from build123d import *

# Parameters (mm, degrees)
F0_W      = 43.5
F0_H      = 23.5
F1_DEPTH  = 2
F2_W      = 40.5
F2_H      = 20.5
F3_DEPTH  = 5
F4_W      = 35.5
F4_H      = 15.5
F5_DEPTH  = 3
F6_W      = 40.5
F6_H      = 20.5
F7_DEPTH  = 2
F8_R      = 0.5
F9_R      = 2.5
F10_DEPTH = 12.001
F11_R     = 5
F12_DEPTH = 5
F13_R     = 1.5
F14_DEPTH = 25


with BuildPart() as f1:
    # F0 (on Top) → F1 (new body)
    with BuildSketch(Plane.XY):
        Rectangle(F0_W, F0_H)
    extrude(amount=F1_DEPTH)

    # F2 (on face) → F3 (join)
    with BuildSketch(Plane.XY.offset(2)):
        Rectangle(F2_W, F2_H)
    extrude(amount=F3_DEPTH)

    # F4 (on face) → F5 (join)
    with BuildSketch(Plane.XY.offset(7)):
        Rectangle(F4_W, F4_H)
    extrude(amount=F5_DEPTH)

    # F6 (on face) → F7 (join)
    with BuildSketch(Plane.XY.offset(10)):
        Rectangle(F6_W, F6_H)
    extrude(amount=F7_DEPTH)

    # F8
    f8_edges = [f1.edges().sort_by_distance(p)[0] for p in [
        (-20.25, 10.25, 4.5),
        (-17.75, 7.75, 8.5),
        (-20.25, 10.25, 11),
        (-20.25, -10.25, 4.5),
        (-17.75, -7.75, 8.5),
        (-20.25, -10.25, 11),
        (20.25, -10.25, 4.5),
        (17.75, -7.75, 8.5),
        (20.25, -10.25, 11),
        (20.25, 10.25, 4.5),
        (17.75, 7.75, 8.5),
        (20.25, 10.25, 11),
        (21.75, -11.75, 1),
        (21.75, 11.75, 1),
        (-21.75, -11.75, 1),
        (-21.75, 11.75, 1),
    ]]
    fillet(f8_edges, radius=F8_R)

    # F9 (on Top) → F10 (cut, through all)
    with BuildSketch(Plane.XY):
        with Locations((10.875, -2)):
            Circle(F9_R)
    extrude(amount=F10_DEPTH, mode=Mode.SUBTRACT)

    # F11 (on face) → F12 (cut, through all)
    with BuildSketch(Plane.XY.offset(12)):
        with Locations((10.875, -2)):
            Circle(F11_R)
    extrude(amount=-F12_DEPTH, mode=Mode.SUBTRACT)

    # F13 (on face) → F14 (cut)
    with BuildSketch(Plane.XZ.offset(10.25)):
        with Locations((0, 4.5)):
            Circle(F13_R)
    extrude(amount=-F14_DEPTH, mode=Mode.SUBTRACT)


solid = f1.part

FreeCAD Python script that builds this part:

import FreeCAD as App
import Part
import Sketcher
Q = App.Units.Quantity


def edges_at(feature, points):
    """Names of the edges that pass closest to the given points."""
    edges = feature.Shape.Edges
    near = lambda p: min(range(len(edges)), key=lambda i: edges[i].distToShape(Part.Vertex(*p))[0])
    return sorted({f"Edge{near(p) + 1}" for p in points})


def add_polygon(sketch, points):
    """Adds a closed chain of lines whose ends are joined by coincident constraints."""
    first, n = sketch.GeometryCount, len(points)
    for a, b in zip(points, points[1:] + points[:1]):
        sketch.addGeometry(Part.LineSegment(App.Vector(*a, 0), App.Vector(*b, 0)), False)
    for i in range(n):
        sketch.addConstraint(Sketcher.Constraint("Coincident", first + i, 2, first + (i + 1) % n, 1))

doc = App.newDocument("Part")
body = doc.addObject("PartDesign::Body", "Body")

sketch1 = body.newObject("Sketcher::SketchObject", "Sketch")
sketch1.AttachmentSupport = (doc.getObject("XY_Plane"), [""])
sketch1.MapMode = "FlatFace"
add_polygon(sketch1, [(-21.75, 11.75), (-21.75, -11.75), (21.75, -11.75), (21.75, 11.75)])
sketch1.addConstraint([
    Sketcher.Constraint("Vertical", 0),
    Sketcher.Constraint("Horizontal", 1),
    Sketcher.Constraint("Vertical", 2),
    Sketcher.Constraint("Horizontal", 3),
    Sketcher.Constraint("Symmetric", 0, 2, 2, 2, -1, 1),
    Sketcher.Constraint("DistanceX", 1, 1, 1, 2, Q("43.5 mm")),
    Sketcher.Constraint("DistanceY", 0, 2, 0, 1, Q("23.5 mm")),
])
pad1 = body.newObject("PartDesign::Pad", "Pad")
pad1.Profile = sketch1
pad1.Length = 2

sketch2 = body.newObject("Sketcher::SketchObject", "Sketch001")
sketch2.AttachmentSupport = (doc.getObject("XY_Plane"), [""])
sketch2.MapMode = "FlatFace"
sketch2.AttachmentOffset = App.Placement(App.Vector(0, 0, 2), App.Rotation())
add_polygon(sketch2, [(-20.25, 10.25), (-20.25, -10.25), (20.25, -10.25), (20.25, 10.25)])
sketch2.addConstraint([
    Sketcher.Constraint("Vertical", 0),
    Sketcher.Constraint("Horizontal", 1),
    Sketcher.Constraint("Vertical", 2),
    Sketcher.Constraint("Horizontal", 3),
    Sketcher.Constraint("Symmetric", 0, 2, 2, 2, -1, 1),
    Sketcher.Constraint("DistanceX", 1, 1, 1, 2, Q("40.5 mm")),
    Sketcher.Constraint("DistanceY", 0, 2, 0, 1, Q("20.5 mm")),
])
pad2 = body.newObject("PartDesign::Pad", "Pad001")
pad2.Profile = sketch2
pad2.Length = 5

sketch3 = body.newObject("Sketcher::SketchObject", "Sketch002")
sketch3.AttachmentSupport = (doc.getObject("XY_Plane"), [""])
sketch3.MapMode = "FlatFace"
sketch3.AttachmentOffset = App.Placement(App.Vector(0, 0, 7), App.Rotation())
add_polygon(sketch3, [(-17.75, 7.75), (-17.75, -7.75), (17.75, -7.75), (17.75, 7.75)])
sketch3.addConstraint([
    Sketcher.Constraint("Vertical", 0),
    Sketcher.Constraint("Horizontal", 1),
    Sketcher.Constraint("Vertical", 2),
    Sketcher.Constraint("Horizontal", 3),
    Sketcher.Constraint("Symmetric", 0, 2, 2, 2, -1, 1),
    Sketcher.Constraint("DistanceX", 1, 1, 1, 2, Q("35.5 mm")),
    Sketcher.Constraint("DistanceY", 0, 2, 0, 1, Q("15.5 mm")),
])
pad3 = body.newObject("PartDesign::Pad", "Pad002")
pad3.Profile = sketch3
pad3.Length = 3

sketch4 = body.newObject("Sketcher::SketchObject", "Sketch003")
sketch4.AttachmentSupport = (doc.getObject("XY_Plane"), [""])
sketch4.MapMode = "FlatFace"
sketch4.AttachmentOffset = App.Placement(App.Vector(0, 0, 10), App.Rotation())
add_polygon(sketch4, [(-20.25, 10.25), (-20.25, -10.25), (20.25, -10.25), (20.25, 10.25)])
sketch4.addConstraint([
    Sketcher.Constraint("Vertical", 0),
    Sketcher.Constraint("Horizontal", 1),
    Sketcher.Constraint("Vertical", 2),
    Sketcher.Constraint("Horizontal", 3),
    Sketcher.Constraint("Symmetric", 0, 2, 2, 2, -1, 1),
    Sketcher.Constraint("DistanceX", 1, 1, 1, 2, Q("40.5 mm")),
    Sketcher.Constraint("DistanceY", 0, 2, 0, 1, Q("20.5 mm")),
])
pad4 = body.newObject("PartDesign::Pad", "Pad003")
pad4.Profile = sketch4
pad4.Length = 2
doc.recompute()

fillet = body.newObject("PartDesign::Fillet", "Fillet")
fillet.Base = (pad4, edges_at(pad4, [
    (-20.25, 10.25, 4.5),
    (-17.75, 7.75, 8.5),
    (-20.25, 10.25, 11),
    (-20.25, -10.25, 4.5),
    (-17.75, -7.75, 8.5),
    (-20.25, -10.25, 11),
    (20.25, -10.25, 4.5),
    (17.75, -7.75, 8.5),
    (20.25, -10.25, 11),
    (20.25, 10.25, 4.5),
    (17.75, 7.75, 8.5),
    (20.25, 10.25, 11),
    (21.75, -11.75, 1),
    (21.75, 11.75, 1),
    (-21.75, -11.75, 1),
    (-21.75, 11.75, 1),
]))
fillet.Radius = 0.5

sketch5 = body.newObject("Sketcher::SketchObject", "Sketch004")
sketch5.AttachmentSupport = (doc.getObject("XY_Plane"), [""])
sketch5.MapMode = "FlatFace"
sketch5.addGeometry(Part.Circle(App.Vector(10.875, -2, 0), App.Vector(0, 0, 1), 2.5), False)
sketch5.addConstraint([
    Sketcher.Constraint("Diameter", 0, Q("5 mm")),
    Sketcher.Constraint("DistanceY", 0, 3, -1, 1, Q("2 mm")),
    Sketcher.Constraint("DistanceX", -1, 1, 0, 3, Q("10.875 mm")),
])
pocket1 = body.newObject("PartDesign::Pocket", "Pocket")
pocket1.Profile = sketch5
pocket1.Type = "ThroughAll"
pocket1.Reversed = True

sketch6 = body.newObject("Sketcher::SketchObject", "Sketch005")
sketch6.AttachmentSupport = (doc.getObject("XY_Plane"), [""])
sketch6.MapMode = "FlatFace"
sketch6.AttachmentOffset = App.Placement(App.Vector(0, 0, 12), App.Rotation())
sketch6.addGeometry(Part.Circle(App.Vector(10.875, -2, 0), App.Vector(0, 0, 1), 5), False)
sketch6.addConstraint([
    Sketcher.Constraint("Diameter", 0, Q("10 mm")),
    Sketcher.Constraint("DistanceY", 0, 3, -1, 1, Q("2 mm")),
    Sketcher.Constraint("DistanceX", -1, 1, 0, 3, Q("10.875 mm")),
])
pocket2 = body.newObject("PartDesign::Pocket", "Pocket001")
pocket2.Profile = sketch6
pocket2.Length = 5

sketch7 = body.newObject("Sketcher::SketchObject", "Sketch006")
sketch7.AttachmentSupport = (doc.getObject("XZ_Plane"), [""])
sketch7.MapMode = "FlatFace"
sketch7.AttachmentOffset = App.Placement(App.Vector(0, 0, 10.25), App.Rotation())
sketch7.addGeometry(Part.Circle(App.Vector(0, 4.5, 0), App.Vector(0, 0, 1), 1.5), False)
sketch7.addConstraint([
    Sketcher.Constraint("PointOnObject", 0, 3, -2),
    Sketcher.Constraint("Diameter", 0, Q("3 mm")),
    Sketcher.Constraint("DistanceY", -1, 1, 0, 3, Q("4.5 mm")),
])
pocket3 = body.newObject("PartDesign::Pocket", "Pocket002")
pocket3.Profile = sketch7
pocket3.Length = 25

doc.recompute()
